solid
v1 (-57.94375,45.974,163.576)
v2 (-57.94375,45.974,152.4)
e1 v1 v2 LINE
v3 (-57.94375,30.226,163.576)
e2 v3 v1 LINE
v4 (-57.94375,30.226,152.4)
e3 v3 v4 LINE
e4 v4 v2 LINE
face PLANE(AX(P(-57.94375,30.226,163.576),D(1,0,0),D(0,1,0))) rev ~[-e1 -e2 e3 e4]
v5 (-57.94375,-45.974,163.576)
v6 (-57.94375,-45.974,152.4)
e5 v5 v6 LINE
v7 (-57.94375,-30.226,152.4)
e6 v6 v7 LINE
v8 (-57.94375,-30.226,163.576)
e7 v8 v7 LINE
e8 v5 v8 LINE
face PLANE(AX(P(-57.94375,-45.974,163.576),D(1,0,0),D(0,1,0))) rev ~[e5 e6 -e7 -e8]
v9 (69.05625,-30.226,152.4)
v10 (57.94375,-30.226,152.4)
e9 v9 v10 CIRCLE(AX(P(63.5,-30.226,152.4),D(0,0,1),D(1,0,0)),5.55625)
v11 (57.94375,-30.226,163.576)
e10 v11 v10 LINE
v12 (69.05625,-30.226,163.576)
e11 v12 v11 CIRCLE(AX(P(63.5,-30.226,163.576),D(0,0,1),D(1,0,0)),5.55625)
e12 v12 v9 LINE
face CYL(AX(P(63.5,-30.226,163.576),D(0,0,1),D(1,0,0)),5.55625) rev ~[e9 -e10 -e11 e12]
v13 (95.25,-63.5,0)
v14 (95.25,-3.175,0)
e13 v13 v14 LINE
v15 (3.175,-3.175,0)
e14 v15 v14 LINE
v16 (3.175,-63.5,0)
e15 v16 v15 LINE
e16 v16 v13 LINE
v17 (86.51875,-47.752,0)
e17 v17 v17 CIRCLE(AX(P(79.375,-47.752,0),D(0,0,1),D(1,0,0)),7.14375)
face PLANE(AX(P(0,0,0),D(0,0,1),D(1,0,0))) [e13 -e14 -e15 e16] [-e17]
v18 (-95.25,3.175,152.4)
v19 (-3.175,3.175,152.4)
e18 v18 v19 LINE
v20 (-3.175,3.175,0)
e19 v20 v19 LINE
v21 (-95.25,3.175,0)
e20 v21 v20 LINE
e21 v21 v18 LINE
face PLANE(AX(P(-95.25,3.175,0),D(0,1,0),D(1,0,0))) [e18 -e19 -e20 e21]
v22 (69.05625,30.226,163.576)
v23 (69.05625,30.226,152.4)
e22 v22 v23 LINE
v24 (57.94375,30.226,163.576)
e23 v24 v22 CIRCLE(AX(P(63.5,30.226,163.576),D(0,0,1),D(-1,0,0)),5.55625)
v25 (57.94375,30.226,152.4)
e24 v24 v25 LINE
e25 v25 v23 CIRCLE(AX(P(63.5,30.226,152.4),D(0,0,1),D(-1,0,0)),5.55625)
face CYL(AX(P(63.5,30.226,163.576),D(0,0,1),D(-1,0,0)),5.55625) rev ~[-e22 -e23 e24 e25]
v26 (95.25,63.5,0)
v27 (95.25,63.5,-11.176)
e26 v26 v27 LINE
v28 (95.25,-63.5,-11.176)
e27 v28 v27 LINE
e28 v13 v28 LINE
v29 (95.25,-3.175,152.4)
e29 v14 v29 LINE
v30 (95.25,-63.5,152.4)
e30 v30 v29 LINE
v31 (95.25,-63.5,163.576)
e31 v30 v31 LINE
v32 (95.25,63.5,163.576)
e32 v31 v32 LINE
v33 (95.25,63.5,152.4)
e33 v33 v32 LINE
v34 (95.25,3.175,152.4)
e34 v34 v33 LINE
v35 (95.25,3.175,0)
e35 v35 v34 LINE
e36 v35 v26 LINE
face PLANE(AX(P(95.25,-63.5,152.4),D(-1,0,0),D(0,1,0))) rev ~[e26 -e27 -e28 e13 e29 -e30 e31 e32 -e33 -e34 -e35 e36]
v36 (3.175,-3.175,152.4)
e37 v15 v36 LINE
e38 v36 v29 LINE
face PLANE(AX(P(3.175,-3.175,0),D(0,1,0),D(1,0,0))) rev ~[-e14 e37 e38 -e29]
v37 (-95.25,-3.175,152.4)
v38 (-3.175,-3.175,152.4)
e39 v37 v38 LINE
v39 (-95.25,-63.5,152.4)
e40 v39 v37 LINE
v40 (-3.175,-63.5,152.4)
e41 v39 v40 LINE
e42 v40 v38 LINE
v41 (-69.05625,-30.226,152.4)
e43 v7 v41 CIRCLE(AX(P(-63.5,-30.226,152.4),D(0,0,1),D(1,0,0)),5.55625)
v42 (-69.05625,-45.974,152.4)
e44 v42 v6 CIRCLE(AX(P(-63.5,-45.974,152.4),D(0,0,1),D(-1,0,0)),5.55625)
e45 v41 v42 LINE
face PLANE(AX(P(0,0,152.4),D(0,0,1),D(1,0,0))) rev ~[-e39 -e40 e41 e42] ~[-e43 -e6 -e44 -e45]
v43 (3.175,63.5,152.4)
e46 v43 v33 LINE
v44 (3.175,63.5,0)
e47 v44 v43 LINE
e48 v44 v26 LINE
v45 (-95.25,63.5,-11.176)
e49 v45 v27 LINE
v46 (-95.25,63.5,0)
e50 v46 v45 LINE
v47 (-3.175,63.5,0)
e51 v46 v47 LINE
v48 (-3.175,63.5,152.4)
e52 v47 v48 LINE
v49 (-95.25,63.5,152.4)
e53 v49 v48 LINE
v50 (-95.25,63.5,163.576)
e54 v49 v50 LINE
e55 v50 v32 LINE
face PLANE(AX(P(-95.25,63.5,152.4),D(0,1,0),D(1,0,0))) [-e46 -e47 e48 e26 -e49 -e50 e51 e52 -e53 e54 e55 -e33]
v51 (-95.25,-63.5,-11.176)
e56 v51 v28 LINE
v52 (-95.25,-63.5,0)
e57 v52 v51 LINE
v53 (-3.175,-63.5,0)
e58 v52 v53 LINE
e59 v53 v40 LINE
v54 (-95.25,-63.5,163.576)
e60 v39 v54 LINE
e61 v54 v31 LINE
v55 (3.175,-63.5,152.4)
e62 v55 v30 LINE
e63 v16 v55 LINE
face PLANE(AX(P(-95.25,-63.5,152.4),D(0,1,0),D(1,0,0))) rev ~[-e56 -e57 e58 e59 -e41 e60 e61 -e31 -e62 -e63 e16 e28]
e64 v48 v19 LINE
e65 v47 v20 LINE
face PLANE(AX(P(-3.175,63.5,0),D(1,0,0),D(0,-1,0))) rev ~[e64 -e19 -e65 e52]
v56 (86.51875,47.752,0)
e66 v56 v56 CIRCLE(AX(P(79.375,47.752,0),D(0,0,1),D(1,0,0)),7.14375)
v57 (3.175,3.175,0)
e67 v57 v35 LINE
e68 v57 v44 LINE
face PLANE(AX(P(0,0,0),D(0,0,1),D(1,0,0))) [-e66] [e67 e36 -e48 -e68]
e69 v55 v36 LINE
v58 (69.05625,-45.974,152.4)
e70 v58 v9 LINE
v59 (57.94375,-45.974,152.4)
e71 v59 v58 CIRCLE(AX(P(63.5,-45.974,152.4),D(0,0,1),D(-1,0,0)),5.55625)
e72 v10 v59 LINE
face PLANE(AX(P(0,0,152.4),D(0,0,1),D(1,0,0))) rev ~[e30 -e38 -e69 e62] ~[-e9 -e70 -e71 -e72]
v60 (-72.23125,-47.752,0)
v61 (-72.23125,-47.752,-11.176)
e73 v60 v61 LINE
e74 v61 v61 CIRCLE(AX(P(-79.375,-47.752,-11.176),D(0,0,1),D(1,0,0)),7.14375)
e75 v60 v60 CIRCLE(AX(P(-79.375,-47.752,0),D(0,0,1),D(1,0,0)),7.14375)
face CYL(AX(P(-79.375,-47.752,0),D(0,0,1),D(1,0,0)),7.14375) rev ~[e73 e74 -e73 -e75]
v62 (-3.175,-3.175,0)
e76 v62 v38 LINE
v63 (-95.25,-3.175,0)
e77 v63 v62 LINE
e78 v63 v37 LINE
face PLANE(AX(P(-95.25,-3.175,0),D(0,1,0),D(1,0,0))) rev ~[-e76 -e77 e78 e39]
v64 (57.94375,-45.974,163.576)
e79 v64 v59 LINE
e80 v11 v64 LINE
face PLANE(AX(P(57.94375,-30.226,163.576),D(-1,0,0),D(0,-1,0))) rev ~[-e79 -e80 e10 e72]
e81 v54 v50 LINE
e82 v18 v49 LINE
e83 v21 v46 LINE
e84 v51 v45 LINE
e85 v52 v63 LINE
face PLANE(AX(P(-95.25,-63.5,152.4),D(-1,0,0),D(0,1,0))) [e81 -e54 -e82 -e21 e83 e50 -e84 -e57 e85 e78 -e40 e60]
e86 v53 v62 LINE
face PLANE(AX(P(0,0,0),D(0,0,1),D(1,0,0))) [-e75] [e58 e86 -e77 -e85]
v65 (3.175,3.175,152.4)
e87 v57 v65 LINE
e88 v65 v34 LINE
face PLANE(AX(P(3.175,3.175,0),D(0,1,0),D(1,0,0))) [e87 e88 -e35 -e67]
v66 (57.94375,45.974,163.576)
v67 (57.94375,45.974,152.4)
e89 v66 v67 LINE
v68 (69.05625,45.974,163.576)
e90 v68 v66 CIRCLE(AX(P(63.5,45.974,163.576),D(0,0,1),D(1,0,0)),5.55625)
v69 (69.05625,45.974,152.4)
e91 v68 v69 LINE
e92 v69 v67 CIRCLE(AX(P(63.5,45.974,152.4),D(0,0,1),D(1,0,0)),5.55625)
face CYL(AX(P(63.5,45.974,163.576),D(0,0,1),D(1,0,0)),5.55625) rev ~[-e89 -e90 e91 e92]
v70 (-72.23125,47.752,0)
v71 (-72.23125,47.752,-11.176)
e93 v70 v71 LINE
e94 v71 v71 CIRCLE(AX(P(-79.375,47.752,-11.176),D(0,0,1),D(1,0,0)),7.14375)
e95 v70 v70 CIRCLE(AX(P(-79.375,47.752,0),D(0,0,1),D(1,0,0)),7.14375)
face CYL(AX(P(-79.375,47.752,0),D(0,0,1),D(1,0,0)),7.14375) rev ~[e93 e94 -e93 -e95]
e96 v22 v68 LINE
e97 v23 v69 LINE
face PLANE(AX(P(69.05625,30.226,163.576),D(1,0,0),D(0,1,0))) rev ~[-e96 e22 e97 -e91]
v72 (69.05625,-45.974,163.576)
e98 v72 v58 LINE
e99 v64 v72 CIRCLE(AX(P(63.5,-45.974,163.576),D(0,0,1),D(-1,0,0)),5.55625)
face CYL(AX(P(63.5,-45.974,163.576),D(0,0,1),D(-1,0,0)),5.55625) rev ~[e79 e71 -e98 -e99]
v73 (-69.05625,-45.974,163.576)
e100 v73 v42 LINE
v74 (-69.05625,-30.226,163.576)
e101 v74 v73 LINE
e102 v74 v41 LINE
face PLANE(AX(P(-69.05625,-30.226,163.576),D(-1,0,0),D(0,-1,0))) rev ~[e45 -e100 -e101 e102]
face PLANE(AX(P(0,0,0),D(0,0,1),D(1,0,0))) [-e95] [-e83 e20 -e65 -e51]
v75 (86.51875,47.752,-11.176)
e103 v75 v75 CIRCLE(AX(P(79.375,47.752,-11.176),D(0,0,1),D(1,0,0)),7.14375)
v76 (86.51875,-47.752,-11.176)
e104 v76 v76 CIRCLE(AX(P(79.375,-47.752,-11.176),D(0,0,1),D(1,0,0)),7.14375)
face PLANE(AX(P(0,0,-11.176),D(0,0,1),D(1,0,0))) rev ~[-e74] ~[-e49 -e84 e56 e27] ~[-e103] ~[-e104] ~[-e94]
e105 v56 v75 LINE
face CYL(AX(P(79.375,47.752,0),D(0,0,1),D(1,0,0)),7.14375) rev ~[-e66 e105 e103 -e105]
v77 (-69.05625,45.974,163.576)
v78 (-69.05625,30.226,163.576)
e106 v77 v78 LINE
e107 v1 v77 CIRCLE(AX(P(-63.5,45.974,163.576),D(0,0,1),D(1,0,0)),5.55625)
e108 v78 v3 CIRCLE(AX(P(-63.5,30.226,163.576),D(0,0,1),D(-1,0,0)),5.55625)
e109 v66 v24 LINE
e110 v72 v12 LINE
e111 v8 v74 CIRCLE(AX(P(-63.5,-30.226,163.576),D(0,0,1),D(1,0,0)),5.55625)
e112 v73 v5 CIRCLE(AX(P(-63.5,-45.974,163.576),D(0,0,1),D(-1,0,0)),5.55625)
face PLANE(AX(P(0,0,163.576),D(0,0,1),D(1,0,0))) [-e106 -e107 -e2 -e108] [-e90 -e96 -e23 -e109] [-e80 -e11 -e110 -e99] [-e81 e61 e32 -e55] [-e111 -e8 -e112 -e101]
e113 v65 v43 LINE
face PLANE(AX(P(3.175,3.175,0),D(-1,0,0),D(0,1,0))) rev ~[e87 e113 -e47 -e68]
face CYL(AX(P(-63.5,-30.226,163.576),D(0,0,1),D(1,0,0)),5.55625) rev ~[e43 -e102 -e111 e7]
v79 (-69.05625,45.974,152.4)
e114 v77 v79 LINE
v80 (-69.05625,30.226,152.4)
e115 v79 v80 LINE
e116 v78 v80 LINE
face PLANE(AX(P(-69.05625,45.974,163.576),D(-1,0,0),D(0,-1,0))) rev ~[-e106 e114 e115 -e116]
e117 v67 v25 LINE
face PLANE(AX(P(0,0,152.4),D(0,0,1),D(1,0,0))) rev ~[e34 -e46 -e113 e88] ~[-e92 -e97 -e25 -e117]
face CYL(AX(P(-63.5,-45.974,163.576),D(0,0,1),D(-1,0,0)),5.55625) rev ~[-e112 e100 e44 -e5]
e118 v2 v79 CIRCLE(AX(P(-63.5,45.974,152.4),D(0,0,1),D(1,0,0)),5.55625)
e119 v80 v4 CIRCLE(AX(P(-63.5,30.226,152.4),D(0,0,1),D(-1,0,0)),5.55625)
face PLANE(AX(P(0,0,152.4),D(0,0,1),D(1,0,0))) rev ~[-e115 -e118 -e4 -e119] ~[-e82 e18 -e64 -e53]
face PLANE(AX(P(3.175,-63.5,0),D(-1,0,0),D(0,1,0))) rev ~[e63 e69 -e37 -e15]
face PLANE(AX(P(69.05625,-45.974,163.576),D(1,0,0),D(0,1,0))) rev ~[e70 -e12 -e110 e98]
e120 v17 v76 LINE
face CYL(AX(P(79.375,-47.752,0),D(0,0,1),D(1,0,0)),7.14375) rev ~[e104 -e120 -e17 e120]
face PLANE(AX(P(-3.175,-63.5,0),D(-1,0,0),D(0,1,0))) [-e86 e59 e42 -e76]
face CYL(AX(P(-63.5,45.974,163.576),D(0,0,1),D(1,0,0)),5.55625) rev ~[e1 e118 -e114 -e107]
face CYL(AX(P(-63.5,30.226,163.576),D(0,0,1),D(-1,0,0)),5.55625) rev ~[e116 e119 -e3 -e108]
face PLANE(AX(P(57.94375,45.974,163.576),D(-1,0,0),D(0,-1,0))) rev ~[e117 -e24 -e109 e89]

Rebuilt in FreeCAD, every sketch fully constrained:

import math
import FreeCAD as App
import Part
import Sketcher

V = App.Vector
Q = App.Units.Quantity

doc = App.newDocument("Part")
body = doc.addObject("PartDesign::Body", "Body")

# Sketch on XY plane
sketch1 = body.newObject("Sketcher::SketchObject", "Sketch")
sketch1.AttachmentSupport = (doc.getObject("XY_Plane"), [""])
sketch1.MapMode = "FlatFace"
sketch1.addGeometry(Part.LineSegment(V(-95, 64, 0), V(-95, -64, 0)), False)
sketch1.addGeometry(Part.LineSegment(V(-95, -64, 0), V(95, -64, 0)), False)
sketch1.addGeometry(Part.LineSegment(V(95, -64, 0), V(95, 64, 0)), False)
sketch1.addGeometry(Part.LineSegment(V(95, 64, 0), V(-95, 64, 0)), False)
sketch1.addGeometry(Part.Circle(V(-79, -48, 0), V(0, 0, 1), 7), False)
sketch1.addGeometry(Part.Circle(V(79, -48, 0), V(0, 0, 1), 7), False)
sketch1.addGeometry(Part.Circle(V(-79, 48, 0), V(0, 0, 1), 7), False)
sketch1.addGeometry(Part.Circle(V(79, 48, 0), V(0, 0, 1), 7), False)
sketch1.addConstraint(Sketcher.Constraint("Coincident", 0, 2, 1, 1))
sketch1.addConstraint(Sketcher.Constraint("Coincident", 1, 2, 2, 1))
sketch1.addConstraint(Sketcher.Constraint("Coincident", 2, 2, 3, 1))
sketch1.addConstraint(Sketcher.Constraint("Coincident", 3, 2, 0, 1))
sketch1.addConstraint(Sketcher.Constraint("Vertical", 0))
sketch1.addConstraint(Sketcher.Constraint("Horizontal", 1))
sketch1.addConstraint(Sketcher.Constraint("Vertical", 2))
sketch1.addConstraint(Sketcher.Constraint("Horizontal", 3))
sketch1.addConstraint(Sketcher.Constraint("Equal", 4, 5))
sketch1.addConstraint(Sketcher.Constraint("Equal", 5, 6))
sketch1.addConstraint(Sketcher.Constraint("Equal", 6, 7))
sketch1.addConstraint(Sketcher.Constraint("Symmetric", 5, 3, 6, 3, -1, 1))
sketch1.addConstraint(Sketcher.Constraint("Symmetric", 4, 3, 7, 3, -1, 1))
sketch1.addConstraint(Sketcher.Constraint("Symmetric", 0, 2, 2, 2, -1, 1))
sketch1.addConstraint(Sketcher.Constraint("Symmetric", 4, 3, 5, 3, -2))
sketch1.addConstraint(Sketcher.Constraint("DistanceY", 0, 2, 0, 1, Q("5 in")))
sketch1.addConstraint(Sketcher.Constraint("Diameter", 4, Q("0.5625 in")))
sketch1.addConstraint(Sketcher.Constraint("DistanceX", 1, 1, 1, 2, Q("7.5 in")))
sketch1.addConstraint(Sketcher.Constraint("DistanceY", 4, 3, -1, 1, Q("1.88 in")))
sketch1.addConstraint(Sketcher.Constraint("DistanceX", 4, 3, 5, 3, Q("6.25 in")))
pad1 = body.newObject("PartDesign::Pad", "Pad")
pad1.Profile = sketch1
pad1.Length = Q("0.44 in")
pad1.Reversed = True

# Sketch on XY plane
sketch2 = body.newObject("Sketcher::SketchObject", "Sketch001")
sketch2.AttachmentSupport = (doc.getObject("XY_Plane"), [""])
sketch2.MapMode = "FlatFace"
sketch2.addGeometry(Part.LineSegment(V(-3, 64, 0), V(-3, 3, 0)), False)
sketch2.addGeometry(Part.LineSegment(V(-3, 3, 0), V(-95, 3, 0)), False)
sketch2.addGeometry(Part.LineSegment(V(-95, 3, 0), V(-95, -3, 0)), False)
sketch2.addGeometry(Part.LineSegment(V(-95, -3, 0), V(-3, -3, 0)), False)
sketch2.addGeometry(Part.LineSegment(V(-3, -3, 0), V(-3, -64, 0)), False)
sketch2.addGeometry(Part.LineSegment(V(-3, -64, 0), V(3, -64, 0)), False)
sketch2.addGeometry(Part.LineSegment(V(3, -64, 0), V(3, -3, 0)), False)
sketch2.addGeometry(Part.LineSegment(V(3, -3, 0), V(95, -3, 0)), False)
sketch2.addGeometry(Part.LineSegment(V(95, -3, 0), V(95, 3, 0)), False)
sketch2.addGeometry(Part.LineSegment(V(95, 3, 0), V(3, 3, 0)), False)
sketch2.addGeometry(Part.LineSegment(V(3, 3, 0), V(3, 64, 0)), False)
sketch2.addGeometry(Part.LineSegment(V(3, 64, 0), V(-3, 64, 0)), False)
sketch2.addConstraint(Sketcher.Constraint("Coincident", 0, 2, 1, 1))
sketch2.addConstraint(Sketcher.Constraint("Coincident", 1, 2, 2, 1))
sketch2.addConstraint(Sketcher.Constraint("Coincident", 2, 2, 3, 1))
sketch2.addConstraint(Sketcher.Constraint("Coincident", 3, 2, 4, 1))
sketch2.addConstraint(Sketcher.Constraint("Coincident", 4, 2, 5, 1))
sketch2.addConstraint(Sketcher.Constraint("Coincident", 5, 2, 6, 1))
sketch2.addConstraint(Sketcher.Constraint("Coincident", 6, 2, 7, 1))
sketch2.addConstraint(Sketcher.Constraint("Coincident", 7, 2, 8, 1))
sketch2.addConstraint(Sketcher.Constraint("Coincident", 8, 2, 9, 1))
sketch2.addConstraint(Sketcher.Constraint("Coincident", 9, 2, 10, 1))
sketch2.addConstraint(Sketcher.Constraint("Coincident", 10, 2, 11, 1))
sketch2.addConstraint(Sketcher.Constraint("Coincident", 11, 2, 0, 1))
sketch2.addConstraint(Sketcher.Constraint("Vertical", 0))
sketch2.addConstraint(Sketcher.Constraint("Horizontal", 1))
sketch2.addConstraint(Sketcher.Constraint("Vertical", 2))
sketch2.addConstraint(Sketcher.Constraint("Horizontal", 3))
sketch2.addConstraint(Sketcher.Constraint("Vertical", 4))
sketch2.addConstraint(Sketcher.Constraint("Horizontal", 5))
sketch2.addConstraint(Sketcher.Constraint("Vertical", 6))
sketch2.addConstraint(Sketcher.Constraint("Horizontal", 7))
sketch2.addConstraint(Sketcher.Constraint("Vertical", 8))
sketch2.addConstraint(Sketcher.Constraint("Horizontal", 9))
sketch2.addConstraint(Sketcher.Constraint("Vertical", 10))
sketch2.addConstraint(Sketcher.Constraint("Horizontal", 11))
sketch2.addConstraint(Sketcher.Constraint("Symmetric", 0, 2, 6, 2, -1, 1))
sketch2.addConstraint(Sketcher.Constraint("Symmetric", 2, 2, 8, 2, -1, 1))
sketch2.addConstraint(Sketcher.Constraint("Symmetric", 4, 2, 10, 2, -1, 1))
sketch2.addConstraint(Sketcher.Constraint("Symmetric", 3, 2, 6, 2, -2))
sketch2.addConstraint(Sketcher.Constraint("Equal", 11, 2))
sketch2.addConstraint(Sketcher.Constraint("DistanceX", 5, 1, 5, 2, Q("0.25 in")))
sketch2.addConstraint(Sketcher.Constraint("DistanceY", 4, 2, -1, 1, Q("2.5 in")))
sketch2.addConstraint(Sketcher.Constraint("DistanceX", 1, 2, 1, 1, Q("3.625 in")))
pad2 = body.newObject("PartDesign::Pad", "Pad001")
pad2.Profile = sketch2
pad2.Length = Q("6 in")

# Sketch on XY plane
sketch3 = body.newObject("Sketcher::SketchObject", "Sketch002")
sketch3.AttachmentSupport = (doc.getObject("XY_Plane"), [""])
sketch3.MapMode = "FlatFace"
sketch3.AttachmentOffset = App.Placement(V(0, 0, 6 * 25.4), App.Rotation())
sketch3.addGeometry(Part.LineSegment(V(-95, 64, 0), V(-95, -64, 0)), False)
sketch3.addGeometry(Part.LineSegment(V(-95, -64, 0), V(95, -64, 0)), False)
sketch3.addGeometry(Part.LineSegment(V(95, -64, 0), V(95, 64, 0)), False)
sketch3.addGeometry(Part.LineSegment(V(95, 64, 0), V(-95, 64, 0)), False)
sketch3.addConstraint(Sketcher.Constraint("Coincident", 0, 2, 1, 1))
sketch3.addConstraint(Sketcher.Constraint("Coincident", 1, 2, 2, 1))
sketch3.addConstraint(Sketcher.Constraint("Coincident", 2, 2, 3, 1))
sketch3.addConstraint(Sketcher.Constraint("Coincident", 3, 2, 0, 1))
sketch3.addConstraint(Sketcher.Constraint("Vertical", 0))
sketch3.addConstraint(Sketcher.Constraint("Horizontal", 1))
sketch3.addConstraint(Sketcher.Constraint("Vertical", 2))
sketch3.addConstraint(Sketcher.Constraint("Horizontal", 3))
sketch3.addConstraint(Sketcher.Constraint("Symmetric", 0, 2, 2, 2, -1, 1))
sketch3.addConstraint(Sketcher.Constraint("DistanceY", 0, 2, 0, 1, Q("5 in")))
sketch3.addConstraint(Sketcher.Constraint("DistanceX", 1, 1, 1, 2, Q("7.5 in")))
pad3 = body.newObject("PartDesign::Pad", "Pad002")
pad3.Profile = sketch3
pad3.Length = Q("0.44 in")

# Sketch on XY plane
sketch4 = body.newObject("Sketcher::SketchObject", "Sketch003")
sketch4.AttachmentSupport = (doc.getObject("XY_Plane"), [""])
sketch4.MapMode = "FlatFace"
sketch4.AttachmentOffset = App.Placement(V(0, 0, 6.44 * 25.4), App.Rotation())
sketch4.addGeometry(Part.ArcOfCircle(Part.Circle(V(-64, -30, 0), V(0, 0, 1), 6), math.radians(0), math.radians(180)), False)
sketch4.addGeometry(Part.LineSegment(V(-69, -30, 0), V(-69, -46, 0)), False)
sketch4.addGeometry(Part.ArcOfCircle(Part.Circle(V(-64, -46, 0), V(0, 0, 1), 6), math.radians(180), math.radians(360)), False)
sketch4.addGeometry(Part.LineSegment(V(-58, -46, 0), V(-58, -30, 0)), False)
sketch4.addGeometry(Part.LineSegment(V(69, -46, 0), V(69, -30, 0)), False)
sketch4.addGeometry(Part.ArcOfCircle(Part.Circle(V(64, -30, 0), V(0, 0, 1), 6), math.radians(0), math.radians(180)), False)
sketch4.addGeometry(Part.LineSegment(V(58, -30, 0), V(58, -46, 0)), False)
sketch4.addGeometry(Part.ArcOfCircle(Part.Circle(V(64, -46, 0), V(0, 0, 1), 6), math.radians(180), math.radians(360)), False)
sketch4.addGeometry(Part.LineSegment(V(-69, 46, 0), V(-69, 30, 0)), False)
sketch4.addGeometry(Part.ArcOfCircle(Part.Circle(V(-64, 30, 0), V(0, 0, 1), 6), math.radians(180), math.radians(360)), False)
sketch4.addGeometry(Part.LineSegment(V(-58, 30, 0), V(-58, 46, 0)), False)
sketch4.addGeometry(Part.ArcOfCircle(Part.Circle(V(-64, 46, 0), V(0, 0, 1), 6), math.radians(0), math.radians(180)), False)
sketch4.addGeometry(Part.ArcOfCircle(Part.Circle(V(64, 30, 0), V(0, 0, 1), 6), math.radians(180), math.radians(360)), False)
sketch4.addGeometry(Part.LineSegment(V(69, 30, 0), V(69, 46, 0)), False)
sketch4.addGeometry(Part.ArcOfCircle(Part.Circle(V(64, 46, 0), V(0, 0, 1), 6), math.radians(0), math.radians(180)), False)
sketch4.addGeometry(Part.LineSegment(V(58, 46, 0), V(58, 30, 0)), False)
sketch4.addConstraint(Sketcher.Constraint("Tangent", 0, 2, 1, 1))
sketch4.addConstraint(Sketcher.Constraint("Tangent", 1, 2, 2, 1))
sketch4.addConstraint(Sketcher.Constraint("Tangent", 2, 2, 3, 1))
sketch4.addConstraint(Sketcher.Constraint("Tangent", 3, 2, 0, 1))
sketch4.addConstraint(Sketcher.Constraint("Tangent", 4, 2, 5, 1))
sketch4.addConstraint(Sketcher.Constraint("Tangent", 5, 2, 6, 1))
sketch4.addConstraint(Sketcher.Constraint("Tangent", 6, 2, 7, 1))
sketch4.addConstraint(Sketcher.Constraint("Tangent", 7, 2, 4, 1))
sketch4.addConstraint(Sketcher.Constraint("Tangent", 8, 2, 9, 1))
sketch4.addConstraint(Sketcher.Constraint("Tangent", 9, 2, 10, 1))
sketch4.addConstraint(Sketcher.Constraint("Tangent", 10, 2, 11, 1))
sketch4.addConstraint(Sketcher.Constraint("Tangent", 11, 2, 8, 1))
sketch4.addConstraint(Sketcher.Constraint("Tangent", 12, 2, 13, 1))
sketch4.addConstraint(Sketcher.Constraint("Tangent", 13, 2, 14, 1))
sketch4.addConstraint(Sketcher.Constraint("Tangent", 14, 2, 15, 1))
sketch4.addConstraint(Sketcher.Constraint("Tangent", 15, 2, 12, 1))
sketch4.addConstraint(Sketcher.Constraint("Vertical", 1))
sketch4.addConstraint(Sketcher.Constraint("Vertical", 3))
sketch4.addConstraint(Sketcher.Constraint("Vertical", 4))
sketch4.addConstraint(Sketcher.Constraint("Vertical", 6))
sketch4.addConstraint(Sketcher.Constraint("Vertical", 8))
sketch4.addConstraint(Sketcher.Constraint("Vertical", 10))
sketch4.addConstraint(Sketcher.Constraint("Vertical", 13))
sketch4.addConstraint(Sketcher.Constraint("Vertical", 15))
sketch4.addConstraint(Sketcher.Constraint("Equal", 2, 5))
sketch4.addConstraint(Sketcher.Constraint("Equal", 7, 9))
sketch4.addConstraint(Sketcher.Constraint("Equal", 11, 12))
sketch4.addConstraint(Sketcher.Constraint("Symmetric", 5, 3, 9, 3, -1, 1))
sketch4.addConstraint(Sketcher.Constraint("Symmetric", 0, 3, 12, 3, -1, 1))
sketch4.addConstraint(Sketcher.Constraint("Symmetric", 0, 3, 5, 3, -2))
sketch4.addConstraint(Sketcher.Constraint("Horizontal", 2, 3, 7, 3))
sketch4.addConstraint(Sketcher.Constraint("Horizontal", 11, 3, 14, 3))
sketch4.addConstraint(Sketcher.Constraint("Equal", 6, 8))
sketch4.addConstraint(Sketcher.Constraint("Radius", 0, Q("0.21875 in")))
sketch4.addConstraint(Sketcher.Constraint("DistanceX", 0, 3, 5, 3, Q("5 in")))
sketch4.addConstraint(Sketcher.Constraint("DistanceY", 2, 3, 9, 3, Q("3 in")))
sketch4.addConstraint(Sketcher.Constraint("DistanceY", 1, 2, 1, 1, Q("0.62 in")))
pocket1 = body.newObject("PartDesign::Pocket", "Pocket")
pocket1.Profile = sketch4
pocket1.Length = Q("1 in")

doc.recompute()
